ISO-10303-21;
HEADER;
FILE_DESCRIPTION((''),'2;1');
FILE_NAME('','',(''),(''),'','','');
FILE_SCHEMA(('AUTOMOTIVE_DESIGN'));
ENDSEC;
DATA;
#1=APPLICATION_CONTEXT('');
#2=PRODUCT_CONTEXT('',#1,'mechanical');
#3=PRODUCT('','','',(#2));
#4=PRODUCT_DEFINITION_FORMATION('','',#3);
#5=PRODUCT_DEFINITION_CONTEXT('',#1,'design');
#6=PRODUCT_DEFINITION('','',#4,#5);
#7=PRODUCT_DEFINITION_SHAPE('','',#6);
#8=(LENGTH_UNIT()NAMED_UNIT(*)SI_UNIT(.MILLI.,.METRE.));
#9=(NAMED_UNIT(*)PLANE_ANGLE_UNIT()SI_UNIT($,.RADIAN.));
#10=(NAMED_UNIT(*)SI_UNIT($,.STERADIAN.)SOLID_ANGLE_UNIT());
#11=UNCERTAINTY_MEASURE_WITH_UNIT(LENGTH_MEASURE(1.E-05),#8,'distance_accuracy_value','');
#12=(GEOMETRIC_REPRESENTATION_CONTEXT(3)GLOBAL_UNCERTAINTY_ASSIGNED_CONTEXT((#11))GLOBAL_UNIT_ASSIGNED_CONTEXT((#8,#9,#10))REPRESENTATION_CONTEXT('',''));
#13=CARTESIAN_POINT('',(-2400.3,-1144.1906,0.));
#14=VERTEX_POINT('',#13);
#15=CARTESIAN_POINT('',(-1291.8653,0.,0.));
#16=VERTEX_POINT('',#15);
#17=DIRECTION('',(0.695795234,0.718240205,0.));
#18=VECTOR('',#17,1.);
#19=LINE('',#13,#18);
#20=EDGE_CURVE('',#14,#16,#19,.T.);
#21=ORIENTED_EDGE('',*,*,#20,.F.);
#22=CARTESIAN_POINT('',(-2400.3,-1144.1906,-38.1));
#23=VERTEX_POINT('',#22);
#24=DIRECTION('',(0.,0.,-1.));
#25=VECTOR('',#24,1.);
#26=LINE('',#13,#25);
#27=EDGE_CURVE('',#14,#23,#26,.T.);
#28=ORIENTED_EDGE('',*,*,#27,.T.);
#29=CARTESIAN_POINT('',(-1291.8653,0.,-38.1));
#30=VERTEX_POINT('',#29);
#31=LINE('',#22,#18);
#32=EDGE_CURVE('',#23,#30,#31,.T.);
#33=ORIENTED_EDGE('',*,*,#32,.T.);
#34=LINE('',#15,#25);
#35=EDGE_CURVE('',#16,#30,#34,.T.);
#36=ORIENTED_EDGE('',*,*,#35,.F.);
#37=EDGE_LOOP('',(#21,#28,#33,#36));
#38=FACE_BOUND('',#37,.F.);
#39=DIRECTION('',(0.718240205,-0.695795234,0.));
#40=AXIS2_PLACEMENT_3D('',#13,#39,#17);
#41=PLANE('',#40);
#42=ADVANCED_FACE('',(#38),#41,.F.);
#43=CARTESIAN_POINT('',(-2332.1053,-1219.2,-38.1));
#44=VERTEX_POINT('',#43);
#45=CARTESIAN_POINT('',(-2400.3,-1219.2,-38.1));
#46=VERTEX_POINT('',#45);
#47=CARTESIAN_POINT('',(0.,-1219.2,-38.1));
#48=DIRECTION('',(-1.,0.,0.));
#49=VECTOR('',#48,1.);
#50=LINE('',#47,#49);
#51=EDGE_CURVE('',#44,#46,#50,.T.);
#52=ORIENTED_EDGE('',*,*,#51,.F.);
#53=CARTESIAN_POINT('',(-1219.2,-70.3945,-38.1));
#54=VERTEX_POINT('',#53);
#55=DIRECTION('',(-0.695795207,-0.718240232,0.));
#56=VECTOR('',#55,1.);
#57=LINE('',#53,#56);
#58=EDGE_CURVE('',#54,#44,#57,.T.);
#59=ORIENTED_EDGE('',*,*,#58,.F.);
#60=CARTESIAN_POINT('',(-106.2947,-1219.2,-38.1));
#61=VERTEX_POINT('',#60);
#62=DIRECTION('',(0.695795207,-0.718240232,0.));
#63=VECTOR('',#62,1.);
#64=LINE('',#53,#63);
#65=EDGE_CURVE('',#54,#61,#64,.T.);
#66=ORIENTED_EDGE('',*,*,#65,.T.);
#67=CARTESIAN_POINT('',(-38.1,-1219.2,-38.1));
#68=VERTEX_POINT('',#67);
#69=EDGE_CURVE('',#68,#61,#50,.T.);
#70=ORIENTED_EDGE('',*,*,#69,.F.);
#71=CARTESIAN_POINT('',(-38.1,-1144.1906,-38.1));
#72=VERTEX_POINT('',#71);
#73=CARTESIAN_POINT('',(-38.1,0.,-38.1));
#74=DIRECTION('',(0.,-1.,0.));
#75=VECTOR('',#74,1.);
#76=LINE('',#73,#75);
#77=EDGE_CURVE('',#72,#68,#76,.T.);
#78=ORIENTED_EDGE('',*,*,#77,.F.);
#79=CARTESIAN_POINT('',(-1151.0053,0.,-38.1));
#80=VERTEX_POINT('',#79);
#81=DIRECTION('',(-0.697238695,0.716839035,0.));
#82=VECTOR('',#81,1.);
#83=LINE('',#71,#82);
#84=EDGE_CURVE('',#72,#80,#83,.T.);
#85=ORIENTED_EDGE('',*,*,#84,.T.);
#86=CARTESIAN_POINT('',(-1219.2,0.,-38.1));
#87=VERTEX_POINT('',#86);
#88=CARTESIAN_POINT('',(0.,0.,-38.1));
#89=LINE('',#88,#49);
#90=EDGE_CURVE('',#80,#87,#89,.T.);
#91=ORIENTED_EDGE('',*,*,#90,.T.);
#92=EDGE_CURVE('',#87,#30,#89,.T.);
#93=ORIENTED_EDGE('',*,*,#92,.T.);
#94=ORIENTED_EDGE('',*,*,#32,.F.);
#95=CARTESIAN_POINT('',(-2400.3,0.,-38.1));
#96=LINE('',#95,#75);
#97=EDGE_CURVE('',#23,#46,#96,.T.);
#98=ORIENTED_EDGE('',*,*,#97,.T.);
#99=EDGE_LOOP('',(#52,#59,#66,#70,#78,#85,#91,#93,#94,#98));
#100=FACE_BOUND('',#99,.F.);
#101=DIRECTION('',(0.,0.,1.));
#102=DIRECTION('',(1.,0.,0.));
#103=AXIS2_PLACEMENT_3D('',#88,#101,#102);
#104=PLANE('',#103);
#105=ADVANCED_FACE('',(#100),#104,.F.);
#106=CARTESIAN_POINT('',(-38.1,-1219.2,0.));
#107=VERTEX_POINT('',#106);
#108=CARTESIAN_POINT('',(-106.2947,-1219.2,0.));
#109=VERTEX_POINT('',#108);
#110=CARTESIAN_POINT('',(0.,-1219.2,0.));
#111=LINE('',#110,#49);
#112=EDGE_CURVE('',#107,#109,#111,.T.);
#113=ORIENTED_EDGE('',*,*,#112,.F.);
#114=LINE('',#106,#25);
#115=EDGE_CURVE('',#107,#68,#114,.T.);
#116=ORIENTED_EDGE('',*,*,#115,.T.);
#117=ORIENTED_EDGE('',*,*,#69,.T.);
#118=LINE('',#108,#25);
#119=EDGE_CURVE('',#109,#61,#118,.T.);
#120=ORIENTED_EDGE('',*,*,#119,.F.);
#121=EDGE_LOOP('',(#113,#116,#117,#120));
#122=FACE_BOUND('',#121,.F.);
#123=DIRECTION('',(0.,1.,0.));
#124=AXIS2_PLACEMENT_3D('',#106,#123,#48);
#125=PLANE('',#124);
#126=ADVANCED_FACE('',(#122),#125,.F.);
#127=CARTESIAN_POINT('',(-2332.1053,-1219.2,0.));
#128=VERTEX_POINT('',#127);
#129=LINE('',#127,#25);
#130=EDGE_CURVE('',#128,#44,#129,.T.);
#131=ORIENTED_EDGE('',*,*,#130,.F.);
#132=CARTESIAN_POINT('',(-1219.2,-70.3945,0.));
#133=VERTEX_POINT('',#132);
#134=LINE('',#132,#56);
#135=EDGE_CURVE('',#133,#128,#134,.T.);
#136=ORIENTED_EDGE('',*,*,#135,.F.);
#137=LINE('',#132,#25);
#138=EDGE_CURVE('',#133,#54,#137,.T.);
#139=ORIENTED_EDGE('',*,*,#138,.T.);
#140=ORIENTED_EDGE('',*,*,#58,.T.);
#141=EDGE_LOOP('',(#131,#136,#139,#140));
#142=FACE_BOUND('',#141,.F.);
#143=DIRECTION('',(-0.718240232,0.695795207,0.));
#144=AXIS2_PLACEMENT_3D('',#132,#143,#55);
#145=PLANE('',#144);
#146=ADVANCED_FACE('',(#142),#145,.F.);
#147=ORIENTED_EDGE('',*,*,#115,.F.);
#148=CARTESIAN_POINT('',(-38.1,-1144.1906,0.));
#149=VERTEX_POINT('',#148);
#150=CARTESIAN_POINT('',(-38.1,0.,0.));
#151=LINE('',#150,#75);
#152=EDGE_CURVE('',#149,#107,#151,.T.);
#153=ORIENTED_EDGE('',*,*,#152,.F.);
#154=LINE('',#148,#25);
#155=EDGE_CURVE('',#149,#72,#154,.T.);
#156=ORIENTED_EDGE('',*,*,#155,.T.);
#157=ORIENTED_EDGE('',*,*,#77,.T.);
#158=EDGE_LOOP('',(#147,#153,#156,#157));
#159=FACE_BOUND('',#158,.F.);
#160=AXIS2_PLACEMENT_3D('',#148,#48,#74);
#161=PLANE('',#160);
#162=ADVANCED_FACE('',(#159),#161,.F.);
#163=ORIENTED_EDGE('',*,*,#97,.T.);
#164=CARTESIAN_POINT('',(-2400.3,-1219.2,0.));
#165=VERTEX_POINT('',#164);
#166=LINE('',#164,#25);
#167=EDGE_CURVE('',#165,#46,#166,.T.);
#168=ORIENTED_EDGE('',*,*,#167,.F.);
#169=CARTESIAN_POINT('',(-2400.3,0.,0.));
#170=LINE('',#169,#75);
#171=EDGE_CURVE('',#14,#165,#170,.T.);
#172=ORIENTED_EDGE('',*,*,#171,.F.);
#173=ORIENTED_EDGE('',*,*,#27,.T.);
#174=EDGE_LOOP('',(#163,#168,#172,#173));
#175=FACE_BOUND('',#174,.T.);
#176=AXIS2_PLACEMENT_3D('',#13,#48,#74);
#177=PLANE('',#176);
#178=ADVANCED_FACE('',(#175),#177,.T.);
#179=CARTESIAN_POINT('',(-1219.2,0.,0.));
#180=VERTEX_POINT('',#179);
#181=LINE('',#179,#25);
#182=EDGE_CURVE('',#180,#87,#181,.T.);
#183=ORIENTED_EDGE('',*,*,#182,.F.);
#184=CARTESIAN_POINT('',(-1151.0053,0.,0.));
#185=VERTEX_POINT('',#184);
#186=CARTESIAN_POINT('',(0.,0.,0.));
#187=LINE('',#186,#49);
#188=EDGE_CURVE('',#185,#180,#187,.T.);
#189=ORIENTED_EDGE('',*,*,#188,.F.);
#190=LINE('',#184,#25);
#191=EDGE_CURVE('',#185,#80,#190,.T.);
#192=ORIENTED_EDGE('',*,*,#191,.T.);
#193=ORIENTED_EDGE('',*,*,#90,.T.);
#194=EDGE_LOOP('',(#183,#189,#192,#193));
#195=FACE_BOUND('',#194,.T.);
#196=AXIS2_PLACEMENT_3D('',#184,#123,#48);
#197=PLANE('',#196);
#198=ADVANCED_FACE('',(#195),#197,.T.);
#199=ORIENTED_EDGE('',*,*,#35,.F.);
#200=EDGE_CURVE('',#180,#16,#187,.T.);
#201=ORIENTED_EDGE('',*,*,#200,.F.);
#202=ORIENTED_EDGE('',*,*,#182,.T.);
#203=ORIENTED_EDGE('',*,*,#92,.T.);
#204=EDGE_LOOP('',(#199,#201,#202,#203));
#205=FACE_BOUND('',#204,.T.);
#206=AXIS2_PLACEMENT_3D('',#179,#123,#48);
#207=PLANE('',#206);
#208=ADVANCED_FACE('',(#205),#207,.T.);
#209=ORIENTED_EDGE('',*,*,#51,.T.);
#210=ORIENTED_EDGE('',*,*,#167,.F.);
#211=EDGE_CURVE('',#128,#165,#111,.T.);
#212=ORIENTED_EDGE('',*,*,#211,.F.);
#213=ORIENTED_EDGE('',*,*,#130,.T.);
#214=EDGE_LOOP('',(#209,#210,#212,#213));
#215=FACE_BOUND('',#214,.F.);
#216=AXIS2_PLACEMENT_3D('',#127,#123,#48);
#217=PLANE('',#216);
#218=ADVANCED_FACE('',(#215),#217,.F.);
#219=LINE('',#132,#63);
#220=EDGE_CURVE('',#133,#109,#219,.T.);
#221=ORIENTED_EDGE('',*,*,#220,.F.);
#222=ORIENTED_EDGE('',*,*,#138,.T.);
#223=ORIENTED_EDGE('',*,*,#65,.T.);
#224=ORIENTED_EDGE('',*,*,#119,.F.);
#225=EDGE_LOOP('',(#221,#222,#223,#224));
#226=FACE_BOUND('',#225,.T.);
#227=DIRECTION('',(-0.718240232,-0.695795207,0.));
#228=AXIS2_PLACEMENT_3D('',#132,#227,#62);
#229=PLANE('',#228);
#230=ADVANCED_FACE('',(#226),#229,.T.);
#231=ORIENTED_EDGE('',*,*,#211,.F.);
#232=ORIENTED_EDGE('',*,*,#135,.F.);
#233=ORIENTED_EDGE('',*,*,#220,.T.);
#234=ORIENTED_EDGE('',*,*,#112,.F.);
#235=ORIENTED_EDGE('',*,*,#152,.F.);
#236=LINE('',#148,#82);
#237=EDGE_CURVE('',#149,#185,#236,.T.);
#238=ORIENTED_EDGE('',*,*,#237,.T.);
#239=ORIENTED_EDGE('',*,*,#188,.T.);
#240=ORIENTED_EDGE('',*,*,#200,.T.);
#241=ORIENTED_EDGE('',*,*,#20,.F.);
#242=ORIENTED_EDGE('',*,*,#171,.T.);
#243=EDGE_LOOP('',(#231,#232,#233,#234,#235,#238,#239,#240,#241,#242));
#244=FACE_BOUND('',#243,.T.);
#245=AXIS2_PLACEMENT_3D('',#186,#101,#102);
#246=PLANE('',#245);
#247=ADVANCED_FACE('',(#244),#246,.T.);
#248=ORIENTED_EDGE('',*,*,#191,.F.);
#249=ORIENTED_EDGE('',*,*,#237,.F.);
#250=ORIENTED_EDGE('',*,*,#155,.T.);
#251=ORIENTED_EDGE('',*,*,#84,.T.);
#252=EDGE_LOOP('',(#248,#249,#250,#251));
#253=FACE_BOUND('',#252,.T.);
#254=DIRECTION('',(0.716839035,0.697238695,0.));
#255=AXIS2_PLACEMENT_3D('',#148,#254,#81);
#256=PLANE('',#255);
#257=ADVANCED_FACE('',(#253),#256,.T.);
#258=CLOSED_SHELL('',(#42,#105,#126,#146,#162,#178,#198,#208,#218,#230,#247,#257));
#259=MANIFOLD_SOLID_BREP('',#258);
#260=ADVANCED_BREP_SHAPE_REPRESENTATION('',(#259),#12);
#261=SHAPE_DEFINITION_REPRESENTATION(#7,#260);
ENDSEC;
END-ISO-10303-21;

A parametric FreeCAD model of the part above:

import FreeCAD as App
import Part
import Sketcher
Q = App.Units.Quantity


def add_polygon(sketch, points):
    """Adds a closed chain of lines whose ends are joined by coincident constraints."""
    first, n = sketch.GeometryCount, len(points)
    for a, b in zip(points, points[1:] + points[:1]):
        sketch.addGeometry(Part.LineSegment(App.Vector(*a, 0), App.Vector(*b, 0)), False)
    for i in range(n):
        sketch.addConstraint(Sketcher.Constraint("Coincident", first + i, 2, first + (i + 1) % n, 1))

doc = App.newDocument("Part")
body = doc.addObject("PartDesign::Body", "Body")

sketch1 = body.newObject("Sketcher::SketchObject", "Sketch")
sketch1.AttachmentSupport = (doc.getObject("XY_Plane"), [""])
sketch1.MapMode = "FlatFace"
add_polygon(sketch1, [(-38.1, -1144.1906), (-1151.0053, 0), (-1291.8653, 0), (-2400.3, -1144.1906), (-2400.3, -1219.2), (-2332.1053, -1219.2), (-1219.2, -70.3945), (-106.2947, -1219.2), (-38.1, -1219.2)])
sketch1.addConstraint([
    Sketcher.Constraint("Horizontal", 1),
    Sketcher.Constraint("Vertical", 3),
    Sketcher.Constraint("Horizontal", 4),
    Sketcher.Constraint("Horizontal", 7),
    Sketcher.Constraint("Vertical", 8),
    Sketcher.Constraint("PointOnObject", 0, 2, -1),
    Sketcher.Constraint("Parallel", 2, 5),
    Sketcher.Constraint("Horizontal", 4, 2, 6, 2),
    Sketcher.Constraint("Horizontal", 2, 2, 8, 2),
    Sketcher.Constraint("Equal", 4, 7),
    Sketcher.Constraint("Equal", 5, 6),
    Sketcher.Constraint("DistanceY", 3, 2, -1, 1, Q("48 in")),
    Sketcher.Constraint("DistanceX", 5, 2, -1, 1, Q("48 in")),
    Sketcher.Constraint("DistanceX", 2, 2, -1, 1, Q("94.5 in")),
    Sketcher.Constraint("DistanceX", 4, 2, 0, 2, Q("46.5 in")),
    Sketcher.Constraint("DistanceY", 3, 2, 3, 1, Q("2.953126 in")),
    Sketcher.Constraint("Angle", 2, Q("-134.0906 deg")),
    Sketcher.Constraint("Distance", 0, Q("62.841 in")),
])
pad1 = body.newObject("PartDesign::Pad", "Pad")
pad1.Profile = sketch1
pad1.Length = Q("1.5 in")
pad1.Reversed = True

doc.recompute()
